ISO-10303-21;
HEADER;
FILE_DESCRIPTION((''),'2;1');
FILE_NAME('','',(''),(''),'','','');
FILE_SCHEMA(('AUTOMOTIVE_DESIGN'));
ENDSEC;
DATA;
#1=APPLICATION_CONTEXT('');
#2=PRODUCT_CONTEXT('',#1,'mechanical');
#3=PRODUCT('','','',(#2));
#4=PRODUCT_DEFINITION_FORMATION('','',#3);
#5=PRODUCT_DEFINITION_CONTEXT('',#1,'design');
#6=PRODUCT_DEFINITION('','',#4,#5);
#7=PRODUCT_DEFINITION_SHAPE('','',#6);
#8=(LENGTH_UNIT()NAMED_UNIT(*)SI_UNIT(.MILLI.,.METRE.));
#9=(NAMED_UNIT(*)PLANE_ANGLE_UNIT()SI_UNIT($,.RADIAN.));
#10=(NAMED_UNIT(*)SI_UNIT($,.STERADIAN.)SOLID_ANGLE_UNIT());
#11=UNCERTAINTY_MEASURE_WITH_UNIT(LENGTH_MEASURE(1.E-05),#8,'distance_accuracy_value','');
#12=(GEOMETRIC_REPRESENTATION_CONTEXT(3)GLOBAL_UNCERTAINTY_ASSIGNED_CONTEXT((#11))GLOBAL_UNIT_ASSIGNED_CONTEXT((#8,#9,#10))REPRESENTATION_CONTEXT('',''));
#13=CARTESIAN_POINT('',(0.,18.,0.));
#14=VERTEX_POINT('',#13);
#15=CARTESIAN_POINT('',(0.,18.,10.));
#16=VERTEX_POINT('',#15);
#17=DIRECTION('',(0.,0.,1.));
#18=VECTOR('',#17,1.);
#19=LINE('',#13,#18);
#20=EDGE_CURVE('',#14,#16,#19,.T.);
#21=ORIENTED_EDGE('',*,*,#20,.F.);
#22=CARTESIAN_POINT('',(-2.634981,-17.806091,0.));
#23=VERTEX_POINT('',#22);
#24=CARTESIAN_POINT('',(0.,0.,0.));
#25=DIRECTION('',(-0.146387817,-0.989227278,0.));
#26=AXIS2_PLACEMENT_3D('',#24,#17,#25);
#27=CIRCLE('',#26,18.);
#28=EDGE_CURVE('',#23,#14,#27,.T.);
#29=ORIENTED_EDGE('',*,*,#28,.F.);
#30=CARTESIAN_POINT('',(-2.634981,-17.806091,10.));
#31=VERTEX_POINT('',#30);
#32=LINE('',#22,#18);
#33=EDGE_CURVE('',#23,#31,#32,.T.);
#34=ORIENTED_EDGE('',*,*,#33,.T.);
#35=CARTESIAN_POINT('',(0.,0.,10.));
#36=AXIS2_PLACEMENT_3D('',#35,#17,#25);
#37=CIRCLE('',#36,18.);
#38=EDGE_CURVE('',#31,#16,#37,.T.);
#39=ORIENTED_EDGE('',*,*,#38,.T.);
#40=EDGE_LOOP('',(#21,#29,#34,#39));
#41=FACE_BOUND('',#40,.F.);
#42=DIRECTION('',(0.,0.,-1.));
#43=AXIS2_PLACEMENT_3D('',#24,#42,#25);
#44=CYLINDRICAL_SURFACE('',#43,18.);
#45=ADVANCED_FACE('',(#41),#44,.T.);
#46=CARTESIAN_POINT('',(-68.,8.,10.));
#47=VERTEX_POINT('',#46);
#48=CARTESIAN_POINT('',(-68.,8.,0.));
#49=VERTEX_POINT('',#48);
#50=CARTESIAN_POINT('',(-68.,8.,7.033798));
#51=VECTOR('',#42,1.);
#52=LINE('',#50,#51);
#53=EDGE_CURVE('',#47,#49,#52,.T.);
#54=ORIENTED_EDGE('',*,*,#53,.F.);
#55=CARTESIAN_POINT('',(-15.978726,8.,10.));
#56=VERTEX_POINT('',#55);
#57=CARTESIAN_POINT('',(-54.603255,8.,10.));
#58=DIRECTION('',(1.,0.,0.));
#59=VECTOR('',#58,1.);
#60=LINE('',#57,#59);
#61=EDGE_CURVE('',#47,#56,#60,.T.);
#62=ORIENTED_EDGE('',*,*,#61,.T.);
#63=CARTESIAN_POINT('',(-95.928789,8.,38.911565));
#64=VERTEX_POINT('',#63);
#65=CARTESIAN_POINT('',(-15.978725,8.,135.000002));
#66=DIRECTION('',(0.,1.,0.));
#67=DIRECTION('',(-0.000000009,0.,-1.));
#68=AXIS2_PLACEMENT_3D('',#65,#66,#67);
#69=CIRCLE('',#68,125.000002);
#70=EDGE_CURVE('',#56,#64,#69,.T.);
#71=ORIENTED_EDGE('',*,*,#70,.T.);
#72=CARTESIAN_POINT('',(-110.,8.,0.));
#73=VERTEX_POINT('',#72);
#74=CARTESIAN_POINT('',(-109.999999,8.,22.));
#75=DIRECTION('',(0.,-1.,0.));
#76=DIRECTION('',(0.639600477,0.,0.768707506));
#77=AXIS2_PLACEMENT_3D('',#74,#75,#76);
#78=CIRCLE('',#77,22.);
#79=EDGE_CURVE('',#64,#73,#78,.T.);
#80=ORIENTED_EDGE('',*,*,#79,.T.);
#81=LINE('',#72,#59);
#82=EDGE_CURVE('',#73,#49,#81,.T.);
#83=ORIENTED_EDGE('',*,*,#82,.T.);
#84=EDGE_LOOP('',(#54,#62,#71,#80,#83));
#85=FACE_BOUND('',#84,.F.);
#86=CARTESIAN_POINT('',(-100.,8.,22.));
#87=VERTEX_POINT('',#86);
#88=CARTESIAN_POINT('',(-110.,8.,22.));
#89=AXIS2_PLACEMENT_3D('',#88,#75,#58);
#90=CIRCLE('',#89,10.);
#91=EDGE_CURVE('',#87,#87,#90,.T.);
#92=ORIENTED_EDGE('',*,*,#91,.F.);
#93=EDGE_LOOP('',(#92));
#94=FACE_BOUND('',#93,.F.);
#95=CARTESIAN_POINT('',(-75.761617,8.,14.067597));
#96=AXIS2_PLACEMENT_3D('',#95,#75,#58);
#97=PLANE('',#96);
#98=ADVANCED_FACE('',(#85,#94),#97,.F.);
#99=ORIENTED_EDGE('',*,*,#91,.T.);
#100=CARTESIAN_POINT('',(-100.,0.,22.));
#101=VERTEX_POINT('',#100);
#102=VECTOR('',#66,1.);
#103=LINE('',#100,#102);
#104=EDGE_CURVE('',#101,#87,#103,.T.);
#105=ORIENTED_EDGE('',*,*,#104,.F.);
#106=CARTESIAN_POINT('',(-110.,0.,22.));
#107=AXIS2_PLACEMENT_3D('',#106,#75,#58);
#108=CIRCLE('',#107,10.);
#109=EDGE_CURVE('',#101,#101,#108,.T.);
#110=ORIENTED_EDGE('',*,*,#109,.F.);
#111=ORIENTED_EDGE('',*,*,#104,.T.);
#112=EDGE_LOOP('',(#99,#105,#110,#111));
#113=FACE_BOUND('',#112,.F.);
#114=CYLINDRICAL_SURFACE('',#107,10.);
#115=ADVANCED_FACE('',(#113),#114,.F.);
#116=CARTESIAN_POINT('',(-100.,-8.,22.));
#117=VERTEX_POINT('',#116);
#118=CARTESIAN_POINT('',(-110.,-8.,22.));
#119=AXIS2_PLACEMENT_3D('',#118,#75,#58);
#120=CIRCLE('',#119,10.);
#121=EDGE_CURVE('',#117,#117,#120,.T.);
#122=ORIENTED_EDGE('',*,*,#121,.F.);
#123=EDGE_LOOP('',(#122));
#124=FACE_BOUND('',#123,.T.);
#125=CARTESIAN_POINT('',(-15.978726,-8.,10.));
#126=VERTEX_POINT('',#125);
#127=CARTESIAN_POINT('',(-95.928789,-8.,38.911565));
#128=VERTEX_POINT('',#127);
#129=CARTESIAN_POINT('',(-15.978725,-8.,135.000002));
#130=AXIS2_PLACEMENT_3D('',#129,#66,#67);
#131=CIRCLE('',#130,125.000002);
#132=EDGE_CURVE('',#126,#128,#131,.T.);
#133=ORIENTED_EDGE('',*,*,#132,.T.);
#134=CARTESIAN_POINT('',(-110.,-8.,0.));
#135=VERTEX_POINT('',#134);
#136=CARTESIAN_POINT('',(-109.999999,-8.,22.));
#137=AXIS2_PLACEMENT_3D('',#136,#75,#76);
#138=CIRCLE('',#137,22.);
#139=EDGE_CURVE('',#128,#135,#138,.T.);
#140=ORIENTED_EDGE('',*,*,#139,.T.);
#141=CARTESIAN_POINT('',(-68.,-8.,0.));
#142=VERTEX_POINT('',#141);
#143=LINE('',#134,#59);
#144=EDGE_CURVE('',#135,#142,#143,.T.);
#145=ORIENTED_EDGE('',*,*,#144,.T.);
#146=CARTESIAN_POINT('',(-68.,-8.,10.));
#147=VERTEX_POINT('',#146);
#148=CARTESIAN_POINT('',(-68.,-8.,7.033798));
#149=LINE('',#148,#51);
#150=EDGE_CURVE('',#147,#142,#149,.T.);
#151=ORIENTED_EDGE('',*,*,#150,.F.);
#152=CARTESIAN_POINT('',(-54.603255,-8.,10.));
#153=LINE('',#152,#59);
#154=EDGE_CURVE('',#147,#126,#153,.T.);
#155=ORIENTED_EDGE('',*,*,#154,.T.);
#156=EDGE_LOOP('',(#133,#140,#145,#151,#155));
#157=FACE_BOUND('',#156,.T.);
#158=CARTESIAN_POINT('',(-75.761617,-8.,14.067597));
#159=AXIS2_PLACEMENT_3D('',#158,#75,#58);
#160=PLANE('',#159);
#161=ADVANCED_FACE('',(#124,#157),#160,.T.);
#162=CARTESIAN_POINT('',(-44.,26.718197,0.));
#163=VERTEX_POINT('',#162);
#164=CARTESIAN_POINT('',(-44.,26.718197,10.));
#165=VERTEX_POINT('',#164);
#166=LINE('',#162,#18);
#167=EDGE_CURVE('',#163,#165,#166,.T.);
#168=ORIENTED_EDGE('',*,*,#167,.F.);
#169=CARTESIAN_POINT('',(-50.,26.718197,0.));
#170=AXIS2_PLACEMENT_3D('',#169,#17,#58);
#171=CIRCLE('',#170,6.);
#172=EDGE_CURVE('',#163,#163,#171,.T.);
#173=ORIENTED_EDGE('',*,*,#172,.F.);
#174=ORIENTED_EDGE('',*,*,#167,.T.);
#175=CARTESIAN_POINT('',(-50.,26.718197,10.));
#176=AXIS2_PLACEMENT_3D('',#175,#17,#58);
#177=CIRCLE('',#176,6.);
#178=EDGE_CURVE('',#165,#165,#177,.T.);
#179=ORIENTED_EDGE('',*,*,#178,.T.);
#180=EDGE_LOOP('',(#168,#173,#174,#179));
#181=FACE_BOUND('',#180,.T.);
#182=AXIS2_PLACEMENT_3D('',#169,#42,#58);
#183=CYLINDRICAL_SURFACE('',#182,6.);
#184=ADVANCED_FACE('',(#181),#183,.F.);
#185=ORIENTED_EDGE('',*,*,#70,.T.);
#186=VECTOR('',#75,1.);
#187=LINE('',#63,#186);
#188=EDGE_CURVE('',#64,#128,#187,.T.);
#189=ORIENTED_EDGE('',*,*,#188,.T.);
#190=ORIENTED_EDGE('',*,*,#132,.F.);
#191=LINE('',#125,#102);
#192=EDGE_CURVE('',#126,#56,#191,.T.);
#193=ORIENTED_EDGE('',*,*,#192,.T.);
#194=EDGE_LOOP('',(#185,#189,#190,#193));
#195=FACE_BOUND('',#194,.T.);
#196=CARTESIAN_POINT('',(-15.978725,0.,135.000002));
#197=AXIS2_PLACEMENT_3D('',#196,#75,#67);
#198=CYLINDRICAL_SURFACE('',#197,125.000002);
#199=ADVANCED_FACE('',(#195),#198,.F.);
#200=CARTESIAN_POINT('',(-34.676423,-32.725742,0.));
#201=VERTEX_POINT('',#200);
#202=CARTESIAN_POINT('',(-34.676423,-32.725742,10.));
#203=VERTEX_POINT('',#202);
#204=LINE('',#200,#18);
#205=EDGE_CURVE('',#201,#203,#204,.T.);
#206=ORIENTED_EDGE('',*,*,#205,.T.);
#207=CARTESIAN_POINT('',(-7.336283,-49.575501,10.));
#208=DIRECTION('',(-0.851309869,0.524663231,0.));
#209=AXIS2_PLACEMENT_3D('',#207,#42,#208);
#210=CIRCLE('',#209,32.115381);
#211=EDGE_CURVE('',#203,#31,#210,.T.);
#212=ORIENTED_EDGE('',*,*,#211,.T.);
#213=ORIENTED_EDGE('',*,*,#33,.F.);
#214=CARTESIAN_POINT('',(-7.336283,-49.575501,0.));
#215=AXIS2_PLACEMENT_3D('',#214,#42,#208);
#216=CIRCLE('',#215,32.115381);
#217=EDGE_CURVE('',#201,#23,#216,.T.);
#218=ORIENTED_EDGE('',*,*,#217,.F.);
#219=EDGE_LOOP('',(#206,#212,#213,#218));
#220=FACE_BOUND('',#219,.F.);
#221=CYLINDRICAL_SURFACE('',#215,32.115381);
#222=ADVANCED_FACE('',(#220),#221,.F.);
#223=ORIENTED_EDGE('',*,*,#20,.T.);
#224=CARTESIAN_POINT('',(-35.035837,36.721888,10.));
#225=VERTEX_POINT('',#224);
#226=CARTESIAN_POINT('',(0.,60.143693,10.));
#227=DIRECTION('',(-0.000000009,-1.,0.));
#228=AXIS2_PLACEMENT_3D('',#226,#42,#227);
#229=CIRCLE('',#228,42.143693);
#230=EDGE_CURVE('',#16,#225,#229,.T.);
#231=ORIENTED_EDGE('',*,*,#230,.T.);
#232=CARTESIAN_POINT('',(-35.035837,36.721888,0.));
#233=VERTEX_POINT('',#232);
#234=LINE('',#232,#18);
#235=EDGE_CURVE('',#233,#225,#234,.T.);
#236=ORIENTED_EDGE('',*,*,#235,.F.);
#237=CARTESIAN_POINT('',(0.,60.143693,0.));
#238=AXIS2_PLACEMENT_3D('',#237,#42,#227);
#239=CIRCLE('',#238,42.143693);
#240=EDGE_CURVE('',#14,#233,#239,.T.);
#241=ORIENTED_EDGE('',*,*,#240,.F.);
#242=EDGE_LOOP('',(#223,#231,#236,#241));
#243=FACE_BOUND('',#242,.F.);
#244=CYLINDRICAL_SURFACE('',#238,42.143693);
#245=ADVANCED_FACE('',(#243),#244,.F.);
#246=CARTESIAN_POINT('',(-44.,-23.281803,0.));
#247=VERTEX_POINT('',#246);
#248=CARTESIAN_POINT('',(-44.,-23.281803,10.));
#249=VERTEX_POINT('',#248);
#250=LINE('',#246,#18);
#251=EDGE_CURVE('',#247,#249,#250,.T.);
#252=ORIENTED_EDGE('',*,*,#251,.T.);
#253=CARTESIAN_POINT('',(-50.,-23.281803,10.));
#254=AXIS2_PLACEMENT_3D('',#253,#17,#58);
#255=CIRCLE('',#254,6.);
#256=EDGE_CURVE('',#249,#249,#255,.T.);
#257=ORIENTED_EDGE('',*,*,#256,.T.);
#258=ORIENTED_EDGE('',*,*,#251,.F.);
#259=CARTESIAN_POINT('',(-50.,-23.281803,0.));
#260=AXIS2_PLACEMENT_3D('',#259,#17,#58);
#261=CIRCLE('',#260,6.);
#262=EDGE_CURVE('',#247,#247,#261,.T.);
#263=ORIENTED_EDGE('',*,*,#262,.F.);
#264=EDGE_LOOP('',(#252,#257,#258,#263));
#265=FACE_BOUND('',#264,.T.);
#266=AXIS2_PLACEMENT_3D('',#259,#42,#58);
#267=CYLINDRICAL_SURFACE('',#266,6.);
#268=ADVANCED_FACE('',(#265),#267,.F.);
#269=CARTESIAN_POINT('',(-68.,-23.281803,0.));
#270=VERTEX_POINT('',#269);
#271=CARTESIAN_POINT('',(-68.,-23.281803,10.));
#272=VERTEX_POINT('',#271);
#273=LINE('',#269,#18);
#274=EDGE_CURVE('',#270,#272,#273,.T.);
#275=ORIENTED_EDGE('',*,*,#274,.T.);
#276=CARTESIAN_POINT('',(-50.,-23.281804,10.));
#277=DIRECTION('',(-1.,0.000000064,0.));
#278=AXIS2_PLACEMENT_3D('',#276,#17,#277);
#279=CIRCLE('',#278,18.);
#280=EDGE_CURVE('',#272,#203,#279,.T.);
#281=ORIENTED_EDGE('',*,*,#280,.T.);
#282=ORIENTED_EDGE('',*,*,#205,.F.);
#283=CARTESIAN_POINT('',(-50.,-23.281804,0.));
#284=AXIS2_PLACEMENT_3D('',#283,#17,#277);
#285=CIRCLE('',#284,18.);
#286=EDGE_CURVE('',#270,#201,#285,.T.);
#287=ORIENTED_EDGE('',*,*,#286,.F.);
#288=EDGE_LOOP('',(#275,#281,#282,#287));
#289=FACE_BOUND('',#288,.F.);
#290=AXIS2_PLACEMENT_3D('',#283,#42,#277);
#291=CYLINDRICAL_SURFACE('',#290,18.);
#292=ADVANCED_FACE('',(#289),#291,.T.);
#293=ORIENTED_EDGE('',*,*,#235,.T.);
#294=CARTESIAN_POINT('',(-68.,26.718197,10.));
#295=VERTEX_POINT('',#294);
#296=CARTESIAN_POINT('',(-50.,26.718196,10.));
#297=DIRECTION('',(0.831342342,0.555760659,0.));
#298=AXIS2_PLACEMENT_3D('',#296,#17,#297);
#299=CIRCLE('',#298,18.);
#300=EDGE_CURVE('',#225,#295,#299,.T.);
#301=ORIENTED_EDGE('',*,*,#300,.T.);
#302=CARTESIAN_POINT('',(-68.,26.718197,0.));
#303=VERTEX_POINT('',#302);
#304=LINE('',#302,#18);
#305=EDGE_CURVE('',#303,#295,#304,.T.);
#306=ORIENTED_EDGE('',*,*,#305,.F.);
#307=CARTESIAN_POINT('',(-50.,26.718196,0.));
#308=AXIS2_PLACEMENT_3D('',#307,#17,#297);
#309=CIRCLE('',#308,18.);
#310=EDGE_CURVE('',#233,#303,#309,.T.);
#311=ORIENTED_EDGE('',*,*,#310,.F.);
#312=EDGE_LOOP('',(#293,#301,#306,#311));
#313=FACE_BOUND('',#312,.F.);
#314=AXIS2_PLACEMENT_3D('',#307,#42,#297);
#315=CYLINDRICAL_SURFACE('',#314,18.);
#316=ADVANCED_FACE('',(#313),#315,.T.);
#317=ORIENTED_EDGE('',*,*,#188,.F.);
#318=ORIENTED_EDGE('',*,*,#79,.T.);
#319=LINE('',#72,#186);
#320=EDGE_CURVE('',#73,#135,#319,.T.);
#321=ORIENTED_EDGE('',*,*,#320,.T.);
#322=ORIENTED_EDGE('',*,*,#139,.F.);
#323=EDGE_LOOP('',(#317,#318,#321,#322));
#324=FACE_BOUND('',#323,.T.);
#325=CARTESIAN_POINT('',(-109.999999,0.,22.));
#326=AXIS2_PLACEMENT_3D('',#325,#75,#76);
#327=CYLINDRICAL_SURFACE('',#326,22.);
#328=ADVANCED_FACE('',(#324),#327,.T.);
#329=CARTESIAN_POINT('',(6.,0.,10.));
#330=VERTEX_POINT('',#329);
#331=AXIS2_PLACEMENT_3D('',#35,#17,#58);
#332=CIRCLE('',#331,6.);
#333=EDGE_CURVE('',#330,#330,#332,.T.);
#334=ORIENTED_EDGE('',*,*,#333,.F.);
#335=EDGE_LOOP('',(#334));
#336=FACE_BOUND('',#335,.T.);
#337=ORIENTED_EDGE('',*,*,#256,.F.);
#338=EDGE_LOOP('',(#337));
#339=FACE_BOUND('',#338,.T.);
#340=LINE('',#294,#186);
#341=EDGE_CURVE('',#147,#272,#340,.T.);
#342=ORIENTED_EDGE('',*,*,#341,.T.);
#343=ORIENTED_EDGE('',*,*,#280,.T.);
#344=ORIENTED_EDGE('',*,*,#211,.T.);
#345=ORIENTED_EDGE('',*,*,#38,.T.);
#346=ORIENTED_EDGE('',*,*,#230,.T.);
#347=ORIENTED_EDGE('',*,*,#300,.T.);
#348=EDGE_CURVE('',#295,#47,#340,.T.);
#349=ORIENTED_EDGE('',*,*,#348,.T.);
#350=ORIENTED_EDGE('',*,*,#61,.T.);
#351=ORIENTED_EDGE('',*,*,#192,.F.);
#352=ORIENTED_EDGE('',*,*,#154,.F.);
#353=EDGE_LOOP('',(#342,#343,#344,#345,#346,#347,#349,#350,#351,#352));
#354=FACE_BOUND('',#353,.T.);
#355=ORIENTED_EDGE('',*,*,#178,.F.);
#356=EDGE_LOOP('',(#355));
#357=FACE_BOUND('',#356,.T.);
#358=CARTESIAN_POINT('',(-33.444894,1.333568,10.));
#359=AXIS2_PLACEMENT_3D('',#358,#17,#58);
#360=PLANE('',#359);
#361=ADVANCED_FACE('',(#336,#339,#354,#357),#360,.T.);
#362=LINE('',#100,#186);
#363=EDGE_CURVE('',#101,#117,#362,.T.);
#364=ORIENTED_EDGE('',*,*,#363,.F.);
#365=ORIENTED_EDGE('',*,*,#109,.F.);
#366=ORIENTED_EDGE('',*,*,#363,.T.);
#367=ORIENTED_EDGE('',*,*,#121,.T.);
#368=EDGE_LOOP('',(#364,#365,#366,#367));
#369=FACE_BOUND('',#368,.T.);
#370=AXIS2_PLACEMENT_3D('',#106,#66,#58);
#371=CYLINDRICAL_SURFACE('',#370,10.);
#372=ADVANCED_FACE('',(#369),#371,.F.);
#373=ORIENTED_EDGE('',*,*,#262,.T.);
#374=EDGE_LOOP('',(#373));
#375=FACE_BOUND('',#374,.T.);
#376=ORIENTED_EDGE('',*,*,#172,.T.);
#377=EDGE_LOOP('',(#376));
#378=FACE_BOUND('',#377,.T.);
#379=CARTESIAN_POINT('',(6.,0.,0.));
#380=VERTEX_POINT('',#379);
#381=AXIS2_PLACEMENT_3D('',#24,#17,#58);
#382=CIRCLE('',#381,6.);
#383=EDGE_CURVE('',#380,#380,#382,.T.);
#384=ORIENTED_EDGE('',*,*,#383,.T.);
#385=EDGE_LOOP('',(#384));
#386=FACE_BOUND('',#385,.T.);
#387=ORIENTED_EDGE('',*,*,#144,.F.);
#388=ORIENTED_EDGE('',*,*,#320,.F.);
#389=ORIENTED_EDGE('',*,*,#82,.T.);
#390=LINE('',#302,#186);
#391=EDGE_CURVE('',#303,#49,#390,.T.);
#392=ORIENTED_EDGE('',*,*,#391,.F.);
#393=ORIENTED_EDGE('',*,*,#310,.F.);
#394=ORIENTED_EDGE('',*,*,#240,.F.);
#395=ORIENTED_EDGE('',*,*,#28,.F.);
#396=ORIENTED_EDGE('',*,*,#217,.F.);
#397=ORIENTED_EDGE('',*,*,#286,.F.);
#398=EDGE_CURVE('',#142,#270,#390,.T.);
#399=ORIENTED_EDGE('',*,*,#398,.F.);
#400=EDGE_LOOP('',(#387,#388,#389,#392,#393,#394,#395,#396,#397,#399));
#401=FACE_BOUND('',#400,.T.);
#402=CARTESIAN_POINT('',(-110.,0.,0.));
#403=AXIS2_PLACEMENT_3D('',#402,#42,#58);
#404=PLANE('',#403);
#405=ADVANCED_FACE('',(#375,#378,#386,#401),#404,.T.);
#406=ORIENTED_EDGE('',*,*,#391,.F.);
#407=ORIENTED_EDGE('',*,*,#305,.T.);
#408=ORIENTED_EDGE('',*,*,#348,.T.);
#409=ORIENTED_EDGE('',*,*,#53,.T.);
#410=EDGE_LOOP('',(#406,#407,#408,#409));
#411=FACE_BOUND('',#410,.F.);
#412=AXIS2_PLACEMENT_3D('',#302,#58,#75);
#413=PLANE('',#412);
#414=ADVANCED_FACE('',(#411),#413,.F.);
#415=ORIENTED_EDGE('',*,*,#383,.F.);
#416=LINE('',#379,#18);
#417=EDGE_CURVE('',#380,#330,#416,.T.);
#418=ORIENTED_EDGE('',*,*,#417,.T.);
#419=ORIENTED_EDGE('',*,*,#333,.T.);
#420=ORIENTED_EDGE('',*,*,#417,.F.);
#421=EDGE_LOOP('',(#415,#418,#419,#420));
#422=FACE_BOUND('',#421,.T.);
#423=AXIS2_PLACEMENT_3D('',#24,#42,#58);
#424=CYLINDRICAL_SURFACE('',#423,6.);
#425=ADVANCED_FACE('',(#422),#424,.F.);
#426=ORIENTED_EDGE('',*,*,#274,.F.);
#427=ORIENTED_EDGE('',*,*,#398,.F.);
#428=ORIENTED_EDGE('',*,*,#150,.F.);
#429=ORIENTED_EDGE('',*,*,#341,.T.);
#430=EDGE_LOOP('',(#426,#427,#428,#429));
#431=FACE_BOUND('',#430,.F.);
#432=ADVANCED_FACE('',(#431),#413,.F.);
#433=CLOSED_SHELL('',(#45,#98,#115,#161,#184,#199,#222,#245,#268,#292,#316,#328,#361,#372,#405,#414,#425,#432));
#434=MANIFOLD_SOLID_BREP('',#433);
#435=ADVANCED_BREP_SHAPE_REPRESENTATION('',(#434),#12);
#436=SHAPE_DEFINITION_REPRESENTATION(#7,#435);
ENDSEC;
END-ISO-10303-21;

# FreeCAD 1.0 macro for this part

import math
import FreeCAD as App
import Part
import Sketcher

V = App.Vector
Q = App.Units.Quantity

doc = App.newDocument("Part")
body = doc.addObject("PartDesign::Body", "Body")

# Sketch on XY plane
sketch1 = body.newObject("Sketcher::SketchObject", "Sketch")
sketch1.AttachmentSupport = (doc.getObject("XY_Plane"), [""])
sketch1.MapMode = "FlatFace"
sketch1.addGeometry(Part.ArcOfCircle(Part.Circle(V(-7, -50, 0), V(0, 0, 1), 32), math.radians(82), math.radians(148)), False)
sketch1.addGeometry(Part.ArcOfCircle(Part.Circle(V(0, 0, 0), V(0, 0, 1), 18), math.radians(-98), math.radians(90)), False)
sketch1.addGeometry(Part.ArcOfCircle(Part.Circle(V(0, 60, 0), V(0, 0, 1), 42), math.radians(-146), math.radians(-90)), False)
sketch1.addGeometry(Part.ArcOfCircle(Part.Circle(V(-50, 27, 0), V(0, 0, 1), 18), math.radians(34), math.radians(180)), False)
sketch1.addGeometry(Part.LineSegment(V(-68, 27, 0), V(-68, -23, 0)), False)
sketch1.addGeometry(Part.ArcOfCircle(Part.Circle(V(-50, -23, 0), V(0, 0, 1), 18), math.radians(180), math.radians(328)), False)
sketch1.addGeometry(Part.Circle(V(-50, -23, 0), V(0, 0, 1), 6), False)
sketch1.addGeometry(Part.Circle(V(0, 0, 0), V(0, 0, 1), 6), False)
sketch1.addGeometry(Part.Circle(V(-50, 27, 0), V(0, 0, 1), 6), False)
sketch1.addConstraint(Sketcher.Constraint("Tangent", 0, 1, 1, 1))
sketch1.addConstraint(Sketcher.Constraint("Tangent", 1, 2, 2, 2))
sketch1.addConstraint(Sketcher.Constraint("Tangent", 2, 1, 3, 1))
sketch1.addConstraint(Sketcher.Constraint("Tangent", 3, 2, 4, 1))
sketch1.addConstraint(Sketcher.Constraint("Tangent", 4, 2, 5, 1))
sketch1.addConstraint(Sketcher.Constraint("Tangent", 5, 2, 0, 2))
sketch1.addConstraint(Sketcher.Constraint("Vertical", 4))
sketch1.addConstraint(Sketcher.Constraint("Coincident", 1, 3, -1, 1))
sketch1.addConstraint(Sketcher.Constraint("Coincident", 7, 3, -1, 1))
sketch1.addConstraint(Sketcher.Constraint("Coincident", 6, 3, 5, 3))
sketch1.addConstraint(Sketcher.Constraint("Coincident", 8, 3, 3, 3))
sketch1.addConstraint(Sketcher.Constraint("Equal", 1, 3))
sketch1.addConstraint(Sketcher.Constraint("Equal", 3, 5))
sketch1.addConstraint(Sketcher.Constraint("Equal", 6, 7))
sketch1.addConstraint(Sketcher.Constraint("Equal", 7, 8))
sketch1.addConstraint(Sketcher.Constraint("PointOnObject", 2, 3, -2))
sketch1.addConstraint(Sketcher.Constraint("Diameter", 6, Q("12 mm")))
sketch1.addConstraint(Sketcher.Constraint("Radius", 1, Q("18 mm")))
sketch1.addConstraint(Sketcher.Constraint("DistanceY", 4, 2, 4, 1, Q("50 mm")))
sketch1.addConstraint(Sketcher.Constraint("DistanceX", 3, 3, -1, 1, Q("50 mm")))
sketch1.addConstraint(Sketcher.Constraint("Radius", 0, Q("32.115381 mm")))
sketch1.addConstraint(Sketcher.Constraint("Radius", 2, Q("42.143693 mm")))
pad1 = body.newObject("PartDesign::Pad", "Pad")
pad1.Profile = sketch1
pad1.Length = 10

# Sketch on XZ plane
sketch2 = body.newObject("Sketcher::SketchObject", "Sketch001")
sketch2.AttachmentSupport = (doc.getObject("XZ_Plane"), [""])
sketch2.MapMode = "FlatFace"
sketch2.addGeometry(Part.ArcOfCircle(Part.Circle(V(-16, 135, 0), V(0, 0, 1), 125), math.radians(-130), math.radians(-90)), False)
sketch2.addGeometry(Part.ArcOfCircle(Part.Circle(V(-110, 22, 0), V(0, 0, 1), 22), math.radians(50), math.radians(270)), False)
sketch2.addGeometry(Part.LineSegment(V(-110, 0, 0), V(-16, 0, 0)), False)
sketch2.addGeometry(Part.LineSegment(V(-16, 0, 0), V(-16, 10, 0)), False)
sketch2.addGeometry(Part.Circle(V(-110, 22, 0), V(0, 0, 1), 10), False)
sketch2.addConstraint(Sketcher.Constraint("Tangent", 0, 1, 1, 1))
sketch2.addConstraint(Sketcher.Constraint("Tangent", 1, 2, 2, 1))
sketch2.addConstraint(Sketcher.Constraint("Coincident", 2, 2, 3, 1))
sketch2.addConstraint(Sketcher.Constraint("Coincident", 3, 2, 0, 2))
sketch2.addConstraint(Sketcher.Constraint("Horizontal", 2))
sketch2.addConstraint(Sketcher.Constraint("Vertical", 3))
sketch2.addConstraint(Sketcher.Constraint("Coincident", 4, 3, 1, 3))
sketch2.addConstraint(Sketcher.Constraint("PointOnObject", 1, 2, -1))
sketch2.addConstraint(Sketcher.Constraint("Vertical", 0, 3, 2, 2))
sketch2.addConstraint(Sketcher.Constraint("Diameter", 4, Q("20 mm")))
sketch2.addConstraint(Sketcher.Constraint("Radius", 0, Q("125.000002 mm")))
sketch2.addConstraint(Sketcher.Constraint("Radius", 1, Q("22 mm")))
sketch2.addConstraint(Sketcher.Constraint("DistanceY", 3, 1, 3, 2, Q("10 mm")))
sketch2.addConstraint(Sketcher.Constraint("DistanceX", 1, 3, -1, 1, Q("109.999999 mm")))
pad2 = body.newObject("PartDesign::Pad", "Pad001")
pad2.Profile = sketch2
pad2.Type = "TwoLengths"
pad2.Length = 8
pad2.Length2 = 8

doc.recompute()
